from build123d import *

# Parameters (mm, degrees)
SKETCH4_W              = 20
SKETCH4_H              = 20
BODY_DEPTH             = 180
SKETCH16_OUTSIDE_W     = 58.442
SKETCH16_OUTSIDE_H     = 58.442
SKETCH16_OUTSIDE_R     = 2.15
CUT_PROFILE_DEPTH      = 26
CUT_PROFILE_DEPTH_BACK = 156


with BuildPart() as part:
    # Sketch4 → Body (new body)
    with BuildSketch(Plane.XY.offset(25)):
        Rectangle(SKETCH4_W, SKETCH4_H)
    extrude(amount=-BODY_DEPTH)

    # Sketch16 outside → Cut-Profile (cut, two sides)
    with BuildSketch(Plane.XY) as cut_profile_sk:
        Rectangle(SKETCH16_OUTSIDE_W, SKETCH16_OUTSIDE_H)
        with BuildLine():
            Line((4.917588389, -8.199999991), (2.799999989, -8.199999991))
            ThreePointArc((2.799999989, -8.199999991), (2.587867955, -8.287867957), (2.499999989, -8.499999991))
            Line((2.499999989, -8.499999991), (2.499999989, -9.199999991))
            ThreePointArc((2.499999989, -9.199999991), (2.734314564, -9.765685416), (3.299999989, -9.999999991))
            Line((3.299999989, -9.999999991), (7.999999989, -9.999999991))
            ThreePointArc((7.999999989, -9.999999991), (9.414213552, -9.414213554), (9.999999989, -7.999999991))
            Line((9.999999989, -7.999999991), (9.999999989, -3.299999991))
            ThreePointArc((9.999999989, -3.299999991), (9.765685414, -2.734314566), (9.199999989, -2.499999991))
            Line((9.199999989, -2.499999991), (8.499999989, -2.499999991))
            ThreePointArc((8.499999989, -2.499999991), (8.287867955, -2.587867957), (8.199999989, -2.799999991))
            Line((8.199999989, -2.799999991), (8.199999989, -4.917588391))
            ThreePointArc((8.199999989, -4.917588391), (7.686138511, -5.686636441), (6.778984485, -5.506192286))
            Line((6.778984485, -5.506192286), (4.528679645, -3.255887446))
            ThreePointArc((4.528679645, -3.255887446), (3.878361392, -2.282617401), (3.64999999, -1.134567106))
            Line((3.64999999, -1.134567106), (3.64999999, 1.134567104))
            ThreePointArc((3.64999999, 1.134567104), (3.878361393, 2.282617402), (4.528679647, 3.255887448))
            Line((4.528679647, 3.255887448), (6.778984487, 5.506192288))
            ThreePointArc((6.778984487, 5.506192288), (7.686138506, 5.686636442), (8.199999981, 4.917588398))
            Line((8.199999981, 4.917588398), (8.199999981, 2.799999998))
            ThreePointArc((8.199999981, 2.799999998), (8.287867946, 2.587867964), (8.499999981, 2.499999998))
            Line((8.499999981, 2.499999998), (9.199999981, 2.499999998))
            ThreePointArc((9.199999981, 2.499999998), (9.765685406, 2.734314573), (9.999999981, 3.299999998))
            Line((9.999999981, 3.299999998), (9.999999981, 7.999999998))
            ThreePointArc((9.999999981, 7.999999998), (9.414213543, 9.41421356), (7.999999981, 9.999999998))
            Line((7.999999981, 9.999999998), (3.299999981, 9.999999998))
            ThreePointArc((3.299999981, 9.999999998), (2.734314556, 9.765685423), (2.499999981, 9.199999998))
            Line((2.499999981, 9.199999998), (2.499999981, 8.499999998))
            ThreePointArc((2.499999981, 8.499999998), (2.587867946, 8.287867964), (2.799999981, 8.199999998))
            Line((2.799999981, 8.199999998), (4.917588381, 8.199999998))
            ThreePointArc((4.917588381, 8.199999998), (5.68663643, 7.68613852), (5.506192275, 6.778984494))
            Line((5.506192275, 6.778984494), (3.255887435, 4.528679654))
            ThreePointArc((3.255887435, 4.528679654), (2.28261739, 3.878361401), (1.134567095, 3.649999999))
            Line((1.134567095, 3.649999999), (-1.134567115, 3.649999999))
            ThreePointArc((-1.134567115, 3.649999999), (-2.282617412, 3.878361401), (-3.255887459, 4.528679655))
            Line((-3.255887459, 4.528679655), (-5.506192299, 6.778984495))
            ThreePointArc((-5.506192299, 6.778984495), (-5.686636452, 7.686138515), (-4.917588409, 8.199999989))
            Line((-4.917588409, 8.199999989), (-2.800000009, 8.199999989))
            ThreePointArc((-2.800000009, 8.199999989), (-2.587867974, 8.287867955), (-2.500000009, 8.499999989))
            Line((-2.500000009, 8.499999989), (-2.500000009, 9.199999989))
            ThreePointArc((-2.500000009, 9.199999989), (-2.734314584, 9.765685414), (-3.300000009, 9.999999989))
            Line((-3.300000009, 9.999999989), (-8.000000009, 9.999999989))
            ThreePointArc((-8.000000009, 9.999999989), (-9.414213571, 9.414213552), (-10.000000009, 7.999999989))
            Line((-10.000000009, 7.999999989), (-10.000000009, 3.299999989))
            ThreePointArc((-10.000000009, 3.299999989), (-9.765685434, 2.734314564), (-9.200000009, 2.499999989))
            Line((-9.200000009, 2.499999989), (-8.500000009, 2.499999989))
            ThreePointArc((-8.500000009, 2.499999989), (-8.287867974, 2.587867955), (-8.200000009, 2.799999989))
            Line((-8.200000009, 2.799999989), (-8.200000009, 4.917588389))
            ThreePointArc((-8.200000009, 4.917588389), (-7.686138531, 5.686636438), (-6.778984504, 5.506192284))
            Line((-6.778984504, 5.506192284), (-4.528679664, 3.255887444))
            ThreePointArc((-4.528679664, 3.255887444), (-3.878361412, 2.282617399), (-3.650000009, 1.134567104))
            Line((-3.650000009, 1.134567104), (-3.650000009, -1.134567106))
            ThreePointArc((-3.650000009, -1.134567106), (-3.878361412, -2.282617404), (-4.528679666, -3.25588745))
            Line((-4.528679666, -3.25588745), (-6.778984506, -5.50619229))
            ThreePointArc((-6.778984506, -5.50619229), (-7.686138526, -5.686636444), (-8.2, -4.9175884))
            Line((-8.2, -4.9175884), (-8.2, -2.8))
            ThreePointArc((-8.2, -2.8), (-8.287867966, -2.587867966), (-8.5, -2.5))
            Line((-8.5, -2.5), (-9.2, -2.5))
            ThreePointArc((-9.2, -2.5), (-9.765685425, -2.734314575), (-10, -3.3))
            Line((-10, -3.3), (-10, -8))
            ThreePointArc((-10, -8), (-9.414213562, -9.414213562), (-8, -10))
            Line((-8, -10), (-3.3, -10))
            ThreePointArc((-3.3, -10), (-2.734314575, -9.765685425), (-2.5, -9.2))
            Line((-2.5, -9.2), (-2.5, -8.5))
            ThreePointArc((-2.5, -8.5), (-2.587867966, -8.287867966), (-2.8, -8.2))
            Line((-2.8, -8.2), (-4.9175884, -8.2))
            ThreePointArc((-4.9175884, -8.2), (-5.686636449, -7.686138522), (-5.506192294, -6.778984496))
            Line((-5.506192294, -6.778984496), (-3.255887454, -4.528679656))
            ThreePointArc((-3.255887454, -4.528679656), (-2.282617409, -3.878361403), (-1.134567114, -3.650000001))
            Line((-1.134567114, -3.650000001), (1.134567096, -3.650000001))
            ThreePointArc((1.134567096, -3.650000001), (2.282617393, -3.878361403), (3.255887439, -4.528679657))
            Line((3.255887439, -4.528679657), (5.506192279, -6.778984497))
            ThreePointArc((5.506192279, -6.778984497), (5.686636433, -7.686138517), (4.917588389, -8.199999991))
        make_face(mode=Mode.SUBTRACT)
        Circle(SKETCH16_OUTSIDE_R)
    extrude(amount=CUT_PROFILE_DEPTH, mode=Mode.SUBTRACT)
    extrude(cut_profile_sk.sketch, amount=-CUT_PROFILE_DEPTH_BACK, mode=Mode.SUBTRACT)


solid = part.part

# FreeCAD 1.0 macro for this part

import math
import FreeCAD as App
import Part
import Sketcher
Q = App.Units.Quantity

doc = App.newDocument("Part")
body = doc.addObject("PartDesign::Body", "Body")

# Sketch on XY plane
sketch1 = body.newObject("Sketcher::SketchObject", "Sketch")
sketch1.AttachmentSupport = (doc.getObject("XY_Plane"), [""])
sketch1.MapMode = "FlatFace"
sketch1.AttachmentOffset = App.Placement(App.Vector(0, 0, 25), App.Rotation())
sketch1.addGeometry([
    Part.LineSegment(App.Vector(-10, 10, 0), App.Vector(-10, -10, 0)),
    Part.LineSegment(App.Vector(-10, -10, 0), App.Vector(10, -10, 0)),
    Part.LineSegment(App.Vector(10, -10, 0), App.Vector(10, 10, 0)),
    Part.LineSegment(App.Vector(10, 10, 0), App.Vector(-10, 10, 0)),
], False)
sketch1.addConstraint([
    Sketcher.Constraint("Coincident", 0, 2, 1, 1),
    Sketcher.Constraint("Coincident", 1, 2, 2, 1),
    Sketcher.Constraint("Coincident", 2, 2, 3, 1),
    Sketcher.Constraint("Coincident", 3, 2, 0, 1),
    Sketcher.Constraint("Vertical", 0),
    Sketcher.Constraint("Horizontal", 1),
    Sketcher.Constraint("Vertical", 2),
    Sketcher.Constraint("Horizontal", 3),
    Sketcher.Constraint("Symmetric", 0, 2, 2, 2, -1, 1),
    Sketcher.Constraint("Equal", 3, 0),
    Sketcher.Constraint("DistanceX", 1, 1, 1, 2, Q("20 mm")),
])
pad1 = body.newObject("PartDesign::Pad", "Pad")
pad1.Profile = sketch1
pad1.Length = 180
pad1.Reversed = True

# Sketch on XY plane
sketch2 = body.newObject("Sketcher::SketchObject", "Sketch001")
sketch2.AttachmentSupport = (doc.getObject("XY_Plane"), [""])
sketch2.MapMode = "FlatFace"
sketch2.addGeometry([
    Part.LineSegment(App.Vector(-29.22, 29.22, 0), App.Vector(-29.22, -29.22, 0)),  # 0
    Part.LineSegment(App.Vector(-29.22, -29.22, 0), App.Vector(29.22, -29.22, 0)),  # 1
    Part.LineSegment(App.Vector(29.22, -29.22, 0), App.Vector(29.22, 29.22, 0)),  # 2
    Part.LineSegment(App.Vector(29.22, 29.22, 0), App.Vector(-29.22, 29.22, 0)),  # 3
    Part.LineSegment(App.Vector(2.8, -8.2, 0), App.Vector(4.92, -8.2, 0)),  # 4
    Part.ArcOfCircle(Part.Circle(App.Vector(4.92, -7.37, 0), App.Vector(0, 0, 1), 0.83), math.radians(-90), math.radians(45)),  # 5
    Part.LineSegment(App.Vector(5.51, -6.78, 0), App.Vector(3.26, -4.53, 0)),  # 6
    Part.ArcOfCircle(Part.Circle(App.Vector(1.13, -6.65, 0), App.Vector(0, 0, 1), 3), math.radians(45), math.radians(90)),  # 7
    Part.LineSegment(App.Vector(1.13, -3.65, 0), App.Vector(-1.13, -3.65, 0)),  # 8
    Part.ArcOfCircle(Part.Circle(App.Vector(-1.13, -6.65, 0), App.Vector(0, 0, 1), 3), math.radians(90), math.radians(135)),  # 9
    Part.LineSegment(App.Vector(-3.26, -4.53, 0), App.Vector(-5.51, -6.78, 0)),  # 10
    Part.ArcOfCircle(Part.Circle(App.Vector(-4.92, -7.37, 0), App.Vector(0, 0, 1), 0.83), math.radians(135), math.radians(270)),  # 11
    Part.LineSegment(App.Vector(-4.92, -8.2, 0), App.Vector(-2.8, -8.2, 0)),  # 12
    Part.ArcOfCircle(Part.Circle(App.Vector(-2.8, -8.5, 0), App.Vector(0, 0, 1), 0.3), math.radians(0), math.radians(90)),  # 13
    Part.LineSegment(App.Vector(-2.5, -8.5, 0), App.Vector(-2.5, -9.2, 0)),  # 14
    Part.ArcOfCircle(Part.Circle(App.Vector(-3.3, -9.2, 0), App.Vector(0, 0, 1), 0.8), math.radians(-90), math.radians(0)),  # 15
    Part.LineSegment(App.Vector(-3.3, -10, 0), App.Vector(-8, -10, 0)),  # 16
    Part.ArcOfCircle(Part.Circle(App.Vector(-8, -8, 0), App.Vector(0, 0, 1), 2), math.radians(-180), math.radians(-90)),  # 17
    Part.LineSegment(App.Vector(-10, -8, 0), App.Vector(-10, -3.3, 0)),  # 18
    Part.ArcOfCircle(Part.Circle(App.Vector(-9.2, -3.3, 0), App.Vector(0, 0, 1), 0.8), math.radians(90), math.radians(180)),  # 19
    Part.LineSegment(App.Vector(-9.2, -2.5, 0), App.Vector(-8.5, -2.5, 0)),  # 20
    Part.ArcOfCircle(Part.Circle(App.Vector(-8.5, -2.8, 0), App.Vector(0, 0, 1), 0.3), math.radians(0), math.radians(90)),  # 21
    Part.LineSegment(App.Vector(-8.2, -2.8, 0), App.Vector(-8.2, -4.92, 0)),  # 22
    Part.ArcOfCircle(Part.Circle(App.Vector(-7.37, -4.92, 0), App.Vector(0, 0, 1), 0.83), math.radians(180), math.radians(315)),  # 23
    Part.LineSegment(App.Vector(-6.78, -5.51, 0), App.Vector(-4.53, -3.26, 0)),  # 24
    Part.ArcOfCircle(Part.Circle(App.Vector(-6.65, -1.13, 0), App.Vector(0, 0, 1), 3), math.radians(-45), math.radians(0)),  # 25
    Part.LineSegment(App.Vector(-3.65, -1.13, 0), App.Vector(-3.65, 1.13, 0)),  # 26
    Part.ArcOfCircle(Part.Circle(App.Vector(-6.65, 1.13, 0), App.Vector(0, 0, 1), 3), math.radians(0), math.radians(45)),  # 27
    Part.LineSegment(App.Vector(-4.53, 3.26, 0), App.Vector(-6.78, 5.51, 0)),  # 28
    Part.ArcOfCircle(Part.Circle(App.Vector(-7.37, 4.92, 0), App.Vector(0, 0, 1), 0.83), math.radians(45), math.radians(180)),  # 29
    Part.LineSegment(App.Vector(-8.2, 4.92, 0), App.Vector(-8.2, 2.8, 0)),  # 30
    Part.ArcOfCircle(Part.Circle(App.Vector(-8.5, 2.8, 0), App.Vector(0, 0, 1), 0.3), math.radians(-90), math.radians(0)),  # 31
    Part.LineSegment(App.Vector(-8.5, 2.5, 0), App.Vector(-9.2, 2.5, 0)),  # 32
    Part.ArcOfCircle(Part.Circle(App.Vector(-9.2, 3.3, 0), App.Vector(0, 0, 1), 0.8), math.radians(180), math.radians(270)),  # 33
    Part.LineSegment(App.Vector(-10, 3.3, 0), App.Vector(-10, 8, 0)),  # 34
    Part.ArcOfCircle(Part.Circle(App.Vector(-8, 8, 0), App.Vector(0, 0, 1), 2), math.radians(90), math.radians(180)),  # 35
    Part.LineSegment(App.Vector(-8, 10, 0), App.Vector(-3.3, 10, 0)),  # 36
    Part.ArcOfCircle(Part.Circle(App.Vector(-3.3, 9.2, 0), App.Vector(0, 0, 1), 0.8), math.radians(0), math.radians(90)),  # 37
    Part.LineSegment(App.Vector(-2.5, 9.2, 0), App.Vector(-2.5, 8.5, 0)),  # 38
    Part.ArcOfCircle(Part.Circle(App.Vector(-2.8, 8.5, 0), App.Vector(0, 0, 1), 0.3), math.radians(-90), math.radians(0)),  # 39
    Part.LineSegment(App.Vector(-2.8, 8.2, 0), App.Vector(-4.92, 8.2, 0)),  # 40
    Part.ArcOfCircle(Part.Circle(App.Vector(-4.92, 7.37, 0), App.Vector(0, 0, 1), 0.83), math.radians(90), math.radians(225)),  # 41
    Part.LineSegment(App.Vector(-5.51, 6.78, 0), App.Vector(-3.26, 4.53, 0)),  # 42
    Part.ArcOfCircle(Part.Circle(App.Vector(-1.13, 6.65, 0), App.Vector(0, 0, 1), 3), math.radians(-135), math.radians(-90)),  # 43
    Part.LineSegment(App.Vector(-1.13, 3.65, 0), App.Vector(1.13, 3.65, 0)),  # 44
    Part.ArcOfCircle(Part.Circle(App.Vector(1.13, 6.65, 0), App.Vector(0, 0, 1), 3), math.radians(-90), math.radians(-45)),  # 45
    Part.LineSegment(App.Vector(3.26, 4.53, 0), App.Vector(5.51, 6.78, 0)),  # 46
    Part.ArcOfCircle(Part.Circle(App.Vector(4.92, 7.37, 0), App.Vector(0, 0, 1), 0.83), math.radians(-45), math.radians(90)),  # 47
    Part.LineSegment(App.Vector(4.92, 8.2, 0), App.Vector(2.8, 8.2, 0)),  # 48
    Part.ArcOfCircle(Part.Circle(App.Vector(2.8, 8.5, 0), App.Vector(0, 0, 1), 0.3), math.radians(180), math.radians(270)),  # 49
    Part.LineSegment(App.Vector(2.5, 8.5, 0), App.Vector(2.5, 9.2, 0)),  # 50
    Part.ArcOfCircle(Part.Circle(App.Vector(3.3, 9.2, 0), App.Vector(0, 0, 1), 0.8), math.radians(90), math.radians(180)),  # 51
    Part.LineSegment(App.Vector(3.3, 10, 0), App.Vector(8, 10, 0)),  # 52
    Part.ArcOfCircle(Part.Circle(App.Vector(8, 8, 0), App.Vector(0, 0, 1), 2), math.radians(0), math.radians(90)),  # 53
    Part.LineSegment(App.Vector(10, 8, 0), App.Vector(10, 3.3, 0)),  # 54
    Part.ArcOfCircle(Part.Circle(App.Vector(9.2, 3.3, 0), App.Vector(0, 0, 1), 0.8), math.radians(-90), math.radians(0)),  # 55
    Part.LineSegment(App.Vector(9.2, 2.5, 0), App.Vector(8.5, 2.5, 0)),  # 56
    Part.ArcOfCircle(Part.Circle(App.Vector(8.5, 2.8, 0), App.Vector(0, 0, 1), 0.3), math.radians(180), math.radians(270)),  # 57
    Part.LineSegment(App.Vector(8.2, 2.8, 0), App.Vector(8.2, 4.92, 0)),  # 58
    Part.ArcOfCircle(Part.Circle(App.Vector(7.37, 4.92, 0), App.Vector(0, 0, 1), 0.83), math.radians(0), math.radians(135)),  # 59
    Part.LineSegment(App.Vector(6.78, 5.51, 0), App.Vector(4.53, 3.26, 0)),  # 60
    Part.ArcOfCircle(Part.Circle(App.Vector(6.65, 1.13, 0), App.Vector(0, 0, 1), 3), math.radians(135), math.radians(180)),  # 61
    Part.LineSegment(App.Vector(3.65, 1.13, 0), App.Vector(3.65, -1.13, 0)),  # 62
    Part.ArcOfCircle(Part.Circle(App.Vector(6.65, -1.13, 0), App.Vector(0, 0, 1), 3), math.radians(180), math.radians(225)),  # 63
    Part.LineSegment(App.Vector(4.53, -3.26, 0), App.Vector(6.78, -5.51, 0)),  # 64
    Part.ArcOfCircle(Part.Circle(App.Vector(7.37, -4.92, 0), App.Vector(0, 0, 1), 0.83), math.radians(-135), math.radians(0)),  # 65
    Part.LineSegment(App.Vector(8.2, -4.92, 0), App.Vector(8.2, -2.8, 0)),  # 66
    Part.ArcOfCircle(Part.Circle(App.Vector(8.5, -2.8, 0), App.Vector(0, 0, 1), 0.3), math.radians(90), math.radians(180)),  # 67
    Part.LineSegment(App.Vector(8.5, -2.5, 0), App.Vector(9.2, -2.5, 0)),  # 68
    Part.ArcOfCircle(Part.Circle(App.Vector(9.2, -3.3, 0), App.Vector(0, 0, 1), 0.8), math.radians(0), math.radians(90)),  # 69
    Part.LineSegment(App.Vector(10, -3.3, 0), App.Vector(10, -8, 0)),  # 70
    Part.ArcOfCircle(Part.Circle(App.Vector(8, -8, 0), App.Vector(0, 0, 1), 2), math.radians(-90), math.radians(0)),  # 71
    Part.LineSegment(App.Vector(8, -10, 0), App.Vector(3.3, -10, 0)),  # 72
    Part.ArcOfCircle(Part.Circle(App.Vector(3.3, -9.2, 0), App.Vector(0, 0, 1), 0.8), math.radians(180), math.radians(270)),  # 73
    Part.LineSegment(App.Vector(2.5, -9.2, 0), App.Vector(2.5, -8.5, 0)),  # 74
    Part.ArcOfCircle(Part.Circle(App.Vector(2.8, -8.5, 0), App.Vector(0, 0, 1), 0.3), math.radians(90), math.radians(180)),  # 75
    Part.Circle(App.Vector(0, 0, 0), App.Vector(0, 0, 1), 2.15),  # 76
], False)
sketch2.addConstraint([
    Sketcher.Constraint("Coincident", 0, 2, 1, 1),
    Sketcher.Constraint("Coincident", 1, 2, 2, 1),
    Sketcher.Constraint("Coincident", 2, 2, 3, 1),
    Sketcher.Constraint("Coincident", 3, 2, 0, 1),
    Sketcher.Constraint("Tangent", 4, 2, 5, 1),
    Sketcher.Constraint("Tangent", 5, 2, 6, 1),
    Sketcher.Constraint("Tangent", 6, 2, 7, 1),
    Sketcher.Constraint("Tangent", 7, 2, 8, 1),
    Sketcher.Constraint("Tangent", 8, 2, 9, 1),
    Sketcher.Constraint("Tangent", 9, 2, 10, 1),
    Sketcher.Constraint("Tangent", 10, 2, 11, 1),
    Sketcher.Constraint("Tangent", 11, 2, 12, 1),
    Sketcher.Constraint("Tangent", 12, 2, 13, 2),
    Sketcher.Constraint("Tangent", 13, 1, 14, 1),
    Sketcher.Constraint("Tangent", 14, 2, 15, 2),
    Sketcher.Constraint("Tangent", 15, 1, 16, 1),
    Sketcher.Constraint("Tangent", 16, 2, 17, 2),
    Sketcher.Constraint("Tangent", 17, 1, 18, 1),
    Sketcher.Constraint("Tangent", 18, 2, 19, 2),
    Sketcher.Constraint("Tangent", 19, 1, 20, 1),
    Sketcher.Constraint("Tangent", 20, 2, 21, 2),
    Sketcher.Constraint("Tangent", 21, 1, 22, 1),
    Sketcher.Constraint("Tangent", 22, 2, 23, 1),
    Sketcher.Constraint("Tangent", 23, 2, 24, 1),
    Sketcher.Constraint("Tangent", 24, 2, 25, 1),
    Sketcher.Constraint("Tangent", 25, 2, 26, 1),
    Sketcher.Constraint("Tangent", 26, 2, 27, 1),
    Sketcher.Constraint("Tangent", 27, 2, 28, 1),
    Sketcher.Constraint("Tangent", 28, 2, 29, 1),
    Sketcher.Constraint("Tangent", 29, 2, 30, 1),
    Sketcher.Constraint("Tangent", 30, 2, 31, 2),
    Sketcher.Constraint("Tangent", 31, 1, 32, 1),
    Sketcher.Constraint("Tangent", 32, 2, 33, 2),
    Sketcher.Constraint("Tangent", 33, 1, 34, 1),
    Sketcher.Constraint("Tangent", 34, 2, 35, 2),
    Sketcher.Constraint("Tangent", 35, 1, 36, 1),
    Sketcher.Constraint("Tangent", 36, 2, 37, 2),
    Sketcher.Constraint("Tangent", 37, 1, 38, 1),
    Sketcher.Constraint("Tangent", 38, 2, 39, 2),
    Sketcher.Constraint("Tangent", 39, 1, 40, 1),
    Sketcher.Constraint("Tangent", 40, 2, 41, 1),
    Sketcher.Constraint("Tangent", 41, 2, 42, 1),
    Sketcher.Constraint("Tangent", 42, 2, 43, 1),
    Sketcher.Constraint("Tangent", 43, 2, 44, 1),
    Sketcher.Constraint("Tangent", 44, 2, 45, 1),
    Sketcher.Constraint("Tangent", 45, 2, 46, 1),
    Sketcher.Constraint("Tangent", 46, 2, 47, 1),
    Sketcher.Constraint("Tangent", 47, 2, 48, 1),
    Sketcher.Constraint("Tangent", 48, 2, 49, 2),
    Sketcher.Constraint("Tangent", 49, 1, 50, 1),
    Sketcher.Constraint("Tangent", 50, 2, 51, 2),
    Sketcher.Constraint("Tangent", 51, 1, 52, 1),
    Sketcher.Constraint("Tangent", 52, 2, 53, 2),
    Sketcher.Constraint("Tangent", 53, 1, 54, 1),
    Sketcher.Constraint("Tangent", 54, 2, 55, 2),
    Sketcher.Constraint("Tangent", 55, 1, 56, 1),
    Sketcher.Constraint("Tangent", 56, 2, 57, 2),
    Sketcher.Constraint("Tangent", 57, 1, 58, 1),
    Sketcher.Constraint("Tangent", 58, 2, 59, 1),
    Sketcher.Constraint("Tangent", 59, 2, 60, 1),
    Sketcher.Constraint("Tangent", 60, 2, 61, 1),
    Sketcher.Constraint("Tangent", 61, 2, 62, 1),
    Sketcher.Constraint("Tangent", 62, 2, 63, 1),
    Sketcher.Constraint("Tangent", 63, 2, 64, 1),
    Sketcher.Constraint("Tangent", 64, 2, 65, 1),
    Sketcher.Constraint("Tangent", 65, 2, 66, 1),
    Sketcher.Constraint("Tangent", 66, 2, 67, 2),
    Sketcher.Constraint("Tangent", 67, 1, 68, 1),
    Sketcher.Constraint("Tangent", 68, 2, 69, 2),
    Sketcher.Constraint("Tangent", 69, 1, 70, 1),
    Sketcher.Constraint("Tangent", 70, 2, 71, 2),
    Sketcher.Constraint("Tangent", 71, 1, 72, 1),
    Sketcher.Constraint("Tangent", 72, 2, 73, 2),
    Sketcher.Constraint("Tangent", 73, 1, 74, 1),
    Sketcher.Constraint("Tangent", 74, 2, 75, 2),
    Sketcher.Constraint("Tangent", 75, 1, 4, 1),
    Sketcher.Constraint("Vertical", 0),
    Sketcher.Constraint("Horizontal", 1),
    Sketcher.Constraint("Vertical", 2),
    Sketcher.Constraint("Horizontal", 3),
    Sketcher.Constraint("Horizontal", 4),
    Sketcher.Constraint("Horizontal", 8),
    Sketcher.Constraint("Horizontal", 12),
    Sketcher.Constraint("Vertical", 14),
    Sketcher.Constraint("Horizontal", 16),
    Sketcher.Constraint("Vertical", 18),
    Sketcher.Constraint("Horizontal", 20),
    Sketcher.Constraint("Vertical", 22),
    Sketcher.Constraint("Vertical", 26),
    Sketcher.Constraint("Vertical", 30),
    Sketcher.Constraint("Horizontal", 32),
    Sketcher.Constraint("Vertical", 34),
    Sketcher.Constraint("Horizontal", 36),
    Sketcher.Constraint("Vertical", 38),
    Sketcher.Constraint("Horizontal", 40),
    Sketcher.Constraint("Horizontal", 44),
    Sketcher.Constraint("Horizontal", 48),
    Sketcher.Constraint("Vertical", 50),
    Sketcher.Constraint("Horizontal", 52),
    Sketcher.Constraint("Vertical", 54),
    Sketcher.Constraint("Horizontal", 56),
    Sketcher.Constraint("Vertical", 58),
    Sketcher.Constraint("Vertical", 62),
    Sketcher.Constraint("Vertical", 66),
    Sketcher.Constraint("Horizontal", 68),
    Sketcher.Constraint("Vertical", 70),
    Sketcher.Constraint("Horizontal", 72),
    Sketcher.Constraint("Vertical", 74),
    Sketcher.Constraint("Coincident", 76, 3, -1, 1),
    Sketcher.Constraint("Equal", 7, 9),
    Sketcher.Constraint("Equal", 5, 11),
    Sketcher.Constraint("Equal", 15, 19),
    Sketcher.Constraint("Equal", 13, 21),
    Sketcher.Constraint("Equal", 11, 23),
    Sketcher.Constraint("Equal", 9, 25),
    Sketcher.Constraint("Equal", 25, 27),
    Sketcher.Constraint("Equal", 23, 29),
    Sketcher.Constraint("Equal", 21, 31),
    Sketcher.Constraint("Equal", 19, 33),
    Sketcher.Constraint("Equal", 17, 35),
    Sketcher.Constraint("Equal", 33, 37),
    Sketcher.Constraint("Equal", 31, 39),
    Sketcher.Constraint("Equal", 29, 41),
    Sketcher.Constraint("Equal", 27, 43),
    Sketcher.Constraint("Equal", 43, 45),
    Sketcher.Constraint("Equal", 41, 47),
    Sketcher.Constraint("Equal", 39, 49),
    Sketcher.Constraint("Equal", 37, 51),
    Sketcher.Constraint("Equal", 35, 53),
    Sketcher.Constraint("Equal", 51, 55),
    Sketcher.Constraint("Equal", 49, 57),
    Sketcher.Constraint("Equal", 47, 59),
    Sketcher.Constraint("Equal", 45, 61),
    Sketcher.Constraint("Equal", 61, 63),
    Sketcher.Constraint("Equal", 59, 65),
    Sketcher.Constraint("Equal", 57, 67),
    Sketcher.Constraint("Equal", 55, 69),
    Sketcher.Constraint("Equal", 53, 71),
    Sketcher.Constraint("Equal", 69, 73),
    Sketcher.Constraint("Equal", 67, 75),
    Sketcher.Constraint("Symmetric", 5, 3, 41, 3, -1, 1),
    Sketcher.Constraint("Symmetric", 7, 3, 43, 3, -1, 1),
    Sketcher.Constraint("Symmetric", 11, 3, 47, 3, -1, 1),
    Sketcher.Constraint("Symmetric", 15, 3, 51, 3, -1, 1),
    Sketcher.Constraint("Symmetric", 19, 3, 55, 3, -1, 1),
    Sketcher.Constraint("Symmetric", 23, 3, 59, 3, -1, 1),
    Sketcher.Constraint("Symmetric", 25, 3, 61, 3, -1, 1),
    Sketcher.Constraint("Symmetric", 29, 3, 65, 3, -1, 1),
    Sketcher.Constraint("Symmetric", 33, 3, 69, 3, -1, 1),
    Sketcher.Constraint("Symmetric", 37, 3, 73, 3, -1, 1),
    Sketcher.Constraint("Symmetric", 0, 2, 2, 2, -1, 1),
    Sketcher.Constraint("Symmetric", 5, 3, 11, 3, -2),
    Sketcher.Constraint("Symmetric", 37, 3, 51, 3, -2),
    Sketcher.Constraint("Symmetric", 33, 3, 55, 3, -2),
    Sketcher.Constraint("Symmetric", 29, 3, 59, 3, -2),
    Sketcher.Constraint("Perpendicular", 6, 10),
    Sketcher.Constraint("Parallel", 10, 24),
    Sketcher.Constraint("Perpendicular", 24, 28),
    Sketcher.Constraint("Perpendicular", 42, 46),
    Sketcher.Constraint("Perpendicular", 60, 64),
    Sketcher.Constraint("Horizontal", 27, 3, 61, 3),
    Sketcher.Constraint("Equal", 3, 0),
    Sketcher.Constraint("Equal", 68, 14),
    Sketcher.Constraint("Equal", 72, 18),
    Sketcher.Constraint("Equal", 48, 22),
    Sketcher.Constraint("Equal", 44, 26),
    Sketcher.Constraint("Equal", 10, 24),
    Sketcher.Constraint("Radius", 7, Q("3 mm")),
    Sketcher.Constraint("Radius", 17, Q("2 mm")),
    Sketcher.Constraint("Diameter", 76, Q("4.3 mm")),
    Sketcher.Constraint("Radius", 13, Q("0.3 mm")),
    Sketcher.Constraint("Radius", 15, Q("0.8 mm")),
    Sketcher.Constraint("DistanceX", 16, 2, 16, 1, Q("4.7 mm")),
    Sketcher.Constraint("DistanceX", 20, 1, 20, 2, Q("0.7 mm")),
    Sketcher.Constraint("DistanceX", 17, 3, -1, 1, Q("8 mm")),
    Sketcher.Constraint("DistanceX", 1, 1, 1, 2, Q("58.442 mm")),
    Sketcher.Constraint("DistanceY", 7, 3, -1, 1, Q("6.65 mm")),
    Sketcher.Constraint("Radius", 5, Q("0.832412 mm")),
    Sketcher.Constraint("DistanceX", 4, 1, 4, 2, Q("2.117588 mm")),
])
pocket1 = body.newObject("PartDesign::Pocket", "Pocket")
pocket1.Profile = sketch2
pocket1.Type = "ThroughAll"
pocket1.Midplane = True

doc.recompute()
